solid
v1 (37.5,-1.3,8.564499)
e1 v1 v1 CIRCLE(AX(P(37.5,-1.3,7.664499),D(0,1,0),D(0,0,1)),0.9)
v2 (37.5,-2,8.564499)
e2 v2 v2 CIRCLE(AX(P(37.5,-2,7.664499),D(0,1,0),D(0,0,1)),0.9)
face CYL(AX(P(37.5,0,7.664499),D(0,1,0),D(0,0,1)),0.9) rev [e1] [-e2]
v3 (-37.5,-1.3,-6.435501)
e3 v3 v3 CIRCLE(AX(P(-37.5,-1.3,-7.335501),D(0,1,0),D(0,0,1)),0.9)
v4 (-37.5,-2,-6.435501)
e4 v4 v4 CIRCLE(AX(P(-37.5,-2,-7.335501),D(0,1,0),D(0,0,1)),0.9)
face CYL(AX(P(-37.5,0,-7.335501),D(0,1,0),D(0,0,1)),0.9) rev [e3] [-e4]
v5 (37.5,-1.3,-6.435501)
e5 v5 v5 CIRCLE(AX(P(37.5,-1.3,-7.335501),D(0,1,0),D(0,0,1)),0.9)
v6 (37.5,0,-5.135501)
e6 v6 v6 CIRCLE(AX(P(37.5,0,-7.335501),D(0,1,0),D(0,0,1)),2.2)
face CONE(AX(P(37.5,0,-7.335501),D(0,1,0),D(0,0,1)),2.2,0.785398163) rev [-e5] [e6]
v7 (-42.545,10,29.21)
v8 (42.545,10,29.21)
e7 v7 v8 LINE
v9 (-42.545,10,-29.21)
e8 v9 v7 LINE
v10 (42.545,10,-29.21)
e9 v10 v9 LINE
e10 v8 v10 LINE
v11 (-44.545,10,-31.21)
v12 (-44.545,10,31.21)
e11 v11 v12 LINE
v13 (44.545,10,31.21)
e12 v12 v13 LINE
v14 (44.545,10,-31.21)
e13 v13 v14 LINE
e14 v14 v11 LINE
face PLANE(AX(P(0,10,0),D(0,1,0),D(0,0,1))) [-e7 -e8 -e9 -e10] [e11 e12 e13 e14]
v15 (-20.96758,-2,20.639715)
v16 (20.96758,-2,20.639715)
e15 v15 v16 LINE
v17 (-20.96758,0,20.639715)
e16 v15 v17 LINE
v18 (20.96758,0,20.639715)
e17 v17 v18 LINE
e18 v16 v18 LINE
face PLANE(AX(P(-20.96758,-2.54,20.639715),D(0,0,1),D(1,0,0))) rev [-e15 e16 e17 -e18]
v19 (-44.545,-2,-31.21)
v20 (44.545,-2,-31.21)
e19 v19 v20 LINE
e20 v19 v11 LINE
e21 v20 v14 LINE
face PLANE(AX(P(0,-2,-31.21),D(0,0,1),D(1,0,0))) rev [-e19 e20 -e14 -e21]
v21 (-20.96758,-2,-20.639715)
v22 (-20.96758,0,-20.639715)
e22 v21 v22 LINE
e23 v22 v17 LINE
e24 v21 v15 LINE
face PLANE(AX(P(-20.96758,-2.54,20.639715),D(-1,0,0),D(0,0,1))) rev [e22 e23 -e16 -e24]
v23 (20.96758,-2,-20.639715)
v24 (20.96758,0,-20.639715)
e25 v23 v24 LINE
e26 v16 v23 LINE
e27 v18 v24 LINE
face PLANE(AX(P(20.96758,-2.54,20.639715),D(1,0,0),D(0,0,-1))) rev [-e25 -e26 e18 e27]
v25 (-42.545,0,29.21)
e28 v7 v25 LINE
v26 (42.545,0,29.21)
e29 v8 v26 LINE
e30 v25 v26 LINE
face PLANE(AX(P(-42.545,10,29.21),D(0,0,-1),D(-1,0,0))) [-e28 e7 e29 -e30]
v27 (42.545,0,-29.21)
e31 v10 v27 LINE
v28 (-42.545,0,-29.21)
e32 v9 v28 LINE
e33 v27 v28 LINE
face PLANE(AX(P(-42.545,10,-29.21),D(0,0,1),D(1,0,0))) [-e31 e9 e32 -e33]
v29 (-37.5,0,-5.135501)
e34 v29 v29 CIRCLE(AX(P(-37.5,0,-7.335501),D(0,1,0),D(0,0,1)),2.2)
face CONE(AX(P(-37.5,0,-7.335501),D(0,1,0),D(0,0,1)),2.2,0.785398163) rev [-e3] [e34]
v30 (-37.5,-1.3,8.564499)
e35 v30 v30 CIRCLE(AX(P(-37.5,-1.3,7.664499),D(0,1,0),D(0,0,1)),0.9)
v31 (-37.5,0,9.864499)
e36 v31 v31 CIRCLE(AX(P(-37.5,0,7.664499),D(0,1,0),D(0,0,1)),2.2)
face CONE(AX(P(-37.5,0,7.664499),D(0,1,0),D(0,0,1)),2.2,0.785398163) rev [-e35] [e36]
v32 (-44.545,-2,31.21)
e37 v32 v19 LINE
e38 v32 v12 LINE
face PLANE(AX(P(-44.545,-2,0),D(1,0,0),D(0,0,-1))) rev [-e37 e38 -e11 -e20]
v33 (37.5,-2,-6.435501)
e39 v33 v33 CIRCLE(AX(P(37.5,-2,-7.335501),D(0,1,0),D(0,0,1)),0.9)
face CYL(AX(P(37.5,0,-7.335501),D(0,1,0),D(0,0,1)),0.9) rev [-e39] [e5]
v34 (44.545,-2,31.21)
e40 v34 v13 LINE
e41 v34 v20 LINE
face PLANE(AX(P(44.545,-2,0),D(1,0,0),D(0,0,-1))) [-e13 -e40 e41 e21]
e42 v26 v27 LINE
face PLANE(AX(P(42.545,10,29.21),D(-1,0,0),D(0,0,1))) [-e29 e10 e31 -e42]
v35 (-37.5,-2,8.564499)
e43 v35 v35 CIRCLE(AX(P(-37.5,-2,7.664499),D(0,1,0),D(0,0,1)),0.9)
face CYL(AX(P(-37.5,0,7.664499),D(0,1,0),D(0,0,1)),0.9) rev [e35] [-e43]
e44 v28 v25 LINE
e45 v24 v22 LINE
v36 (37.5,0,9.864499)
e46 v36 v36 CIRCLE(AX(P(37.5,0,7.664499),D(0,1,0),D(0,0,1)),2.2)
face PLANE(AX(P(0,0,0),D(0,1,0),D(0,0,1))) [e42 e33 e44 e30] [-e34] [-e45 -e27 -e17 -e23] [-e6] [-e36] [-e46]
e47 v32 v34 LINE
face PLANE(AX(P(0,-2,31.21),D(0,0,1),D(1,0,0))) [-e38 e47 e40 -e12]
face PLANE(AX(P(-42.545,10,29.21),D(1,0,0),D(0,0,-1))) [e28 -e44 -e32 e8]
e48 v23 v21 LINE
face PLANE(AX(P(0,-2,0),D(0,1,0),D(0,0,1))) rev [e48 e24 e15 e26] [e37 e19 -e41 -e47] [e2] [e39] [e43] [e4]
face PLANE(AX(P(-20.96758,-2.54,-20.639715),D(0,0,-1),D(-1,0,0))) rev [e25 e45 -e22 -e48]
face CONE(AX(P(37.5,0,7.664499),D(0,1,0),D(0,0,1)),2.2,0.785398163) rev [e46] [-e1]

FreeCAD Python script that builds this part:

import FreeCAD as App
import Part
import Sketcher
from FreeCAD import Vector
Q = App.Units.Quantity


def add_polygon(sketch, points):
    """Adds a closed chain of lines whose ends are joined by coincident constraints."""
    first, n = sketch.GeometryCount, len(points)
    for a, b in zip(points, points[1:] + points[:1]):
        sketch.addGeometry(Part.LineSegment(App.Vector(*a, 0), App.Vector(*b, 0)), False)
    for i in range(n):
        sketch.addConstraint(Sketcher.Constraint("Coincident", first + i, 2, first + (i + 1) % n, 1))

doc = App.newDocument("Part")
params = doc.addObject("Spreadsheet::Sheet", "Params")
for row, (alias, value) in enumerate([
    ("pad1_length", "2 mm"),
    ("sketch2_height", "2.3 in"),
    ("sketch2_width", "3.35 in"),
    ("pad2_length", "10 mm"),
    ("hole_diameter", "1.8 mm"),
    ("hole_depth", "0.39 in"),
    ("hole_csink_diameter", "4.4 mm"),
    ("pocket1_length", "0.1 in"),
], start=1):
    params.set(f"A{row}", alias)
    params.set(f"B{row}", "=" + value)
    params.setAlias(f"B{row}", alias)

body = doc.addObject("PartDesign::Body", "Body")

# Sketch on XZ plane
sketch1 = body.newObject("Sketcher::SketchObject", "Sketch")
sketch1.AttachmentSupport = (doc.getObject("XZ_Plane"), [""])
sketch1.MapMode = "FlatFace"
add_polygon(sketch1, [(-45, -31), (-45, 31), (45, 31), (45, -31)])  # lines 0-3
sketch1.addConstraint([
    Sketcher.Constraint("Vertical", 0),
    Sketcher.Constraint("Horizontal", 1),
    Sketcher.Constraint("Vertical", 2),
    Sketcher.Constraint("Horizontal", 3),
    Sketcher.Constraint("Symmetric", 0, 2, 2, 2, -1, 1),
    Sketcher.Constraint("DistanceX", 1, 1, 1, 2, Q("89.09 mm")),
    Sketcher.Constraint("DistanceY", 0, 1, 0, 2, Q("62.42 mm")),
])
pad1 = body.newObject("PartDesign::Pad", "Pad")
pad1.Profile = sketch1
pad1.setExpression("Length", "Params.pad1_length")

# Sketch on XZ plane
sketch2 = body.newObject("Sketcher::SketchObject", "Sketch001")
sketch2.AttachmentSupport = (doc.getObject("XZ_Plane"), [""])
sketch2.MapMode = "FlatFace"
add_polygon(sketch2, [(-45, -31), (-45, 31), (45, 31), (45, -31)])  # lines 0-3
add_polygon(sketch2, [(43, 29), (-43, 29), (-43, -29), (43, -29)])  # lines 4-7
sketch2.addConstraint([
    Sketcher.Constraint("Vertical", 0),
    Sketcher.Constraint("Horizontal", 1),
    Sketcher.Constraint("Vertical", 2),
    Sketcher.Constraint("Horizontal", 3),
    Sketcher.Constraint("Horizontal", 4),
    Sketcher.Constraint("Vertical", 5),
    Sketcher.Constraint("Horizontal", 6),
    Sketcher.Constraint("Vertical", 7),
    Sketcher.Constraint("Symmetric", 0, 2, 2, 2, -1, 1),
    Sketcher.Constraint("Symmetric", 4, 2, 6, 2, -1, 1),
    Sketcher.Constraint("DistanceY", 5, 2, 5, 1, Q("2.3 in")),
    Sketcher.Constraint("DistanceX", 4, 2, 4, 1, Q("3.35 in")),
    Sketcher.Constraint("DistanceX", 1, 1, 1, 2, Q("89.09 mm")),
    Sketcher.Constraint("DistanceY", 0, 1, 0, 2, Q("62.42 mm")),
])
sketch2.setExpression("Constraints[18]", "Params.sketch2_height")
sketch2.setExpression("Constraints[19]", "Params.sketch2_width")
pad2 = body.newObject("PartDesign::Pad", "Pad001")
pad2.Profile = sketch2
pad2.setExpression("Length", "Params.pad2_length")
pad2.Reversed = True

# Sketch on XZ plane
sketch3 = body.newObject("Sketcher::SketchObject", "Sketch002")
sketch3.AttachmentSupport = (doc.getObject("XZ_Plane"), [""])
sketch3.MapMode = "FlatFace"
sketch3.addGeometry([
    Part.Circle(Vector(37.5, -7.3, 0), Vector(0, 0, 1), 0.9),
    Part.Circle(Vector(-37.5, -7.3, 0), Vector(0, 0, 1), 0.9),
    Part.Circle(Vector(-37.5, 7.7, 0), Vector(0, 0, 1), 0.9),
    Part.Circle(Vector(37.5, 7.7, 0), Vector(0, 0, 1), 0.9),
], False)
sketch3.addConstraint([
    Sketcher.Constraint("Equal", 0, 1),
    Sketcher.Constraint("Equal", 1, 2),
    Sketcher.Constraint("Equal", 2, 3),
    Sketcher.Constraint("Symmetric", 0, 3, 1, 3, -2),
    Sketcher.Constraint("Symmetric", 2, 3, 3, 3, -2),
    Sketcher.Constraint("Vertical", 1, 3, 2, 3),
    Sketcher.Constraint("Diameter", 0, Q("1.8 mm")),
    Sketcher.Constraint("DistanceX", -1, 1, 0, 3, Q("37.5 mm")),
    Sketcher.Constraint("DistanceY", 0, 3, -1, 1, Q("7.335501 mm")),
    Sketcher.Constraint("DistanceY", -1, 1, 2, 3, Q("7.664499 mm")),
])
doc.recompute()
hole = body.newObject("PartDesign::Hole", "Hole")
hole.Profile = sketch3
hole.ThreadType = "None"
hole.setExpression("Diameter", "Params.hole_diameter")
hole.DepthType = "Dimension"
hole.setExpression("Depth", "Params.hole_depth")
hole.DrillPoint = "Angled"
hole.DrillPointAngle = 118
hole.HoleCutType = "Countersink"
hole.setExpression("HoleCutDiameter", "Params.hole_csink_diameter")
hole.HoleCutCountersinkAngle = 90
hole.Reversed = True

# Sketch on XZ plane
sketch4 = body.newObject("Sketcher::SketchObject", "Sketch003")
sketch4.AttachmentSupport = (doc.getObject("XZ_Plane"), [""])
sketch4.MapMode = "FlatFace"
add_polygon(sketch4, [(-21, -21), (-21, 21), (21, 21), (21, -21)])  # lines 0-3
sketch4.addConstraint([
    Sketcher.Constraint("Vertical", 0),
    Sketcher.Constraint("Horizontal", 1),
    Sketcher.Constraint("Vertical", 2),
    Sketcher.Constraint("Horizontal", 3),
    Sketcher.Constraint("Symmetric", 0, 2, 2, 2, -1, 1),
    Sketcher.Constraint("DistanceX", 1, 1, 1, 2, Q("41.935161 mm")),
    Sketcher.Constraint("DistanceY", 0, 1, 0, 2, Q("41.27943 mm")),
])
pocket1 = body.newObject("PartDesign::Pocket", "Pocket")
pocket1.Profile = sketch4
pocket1.setExpression("Length", "Params.pocket1_length")
pocket1.Reversed = True

doc.recompute()
